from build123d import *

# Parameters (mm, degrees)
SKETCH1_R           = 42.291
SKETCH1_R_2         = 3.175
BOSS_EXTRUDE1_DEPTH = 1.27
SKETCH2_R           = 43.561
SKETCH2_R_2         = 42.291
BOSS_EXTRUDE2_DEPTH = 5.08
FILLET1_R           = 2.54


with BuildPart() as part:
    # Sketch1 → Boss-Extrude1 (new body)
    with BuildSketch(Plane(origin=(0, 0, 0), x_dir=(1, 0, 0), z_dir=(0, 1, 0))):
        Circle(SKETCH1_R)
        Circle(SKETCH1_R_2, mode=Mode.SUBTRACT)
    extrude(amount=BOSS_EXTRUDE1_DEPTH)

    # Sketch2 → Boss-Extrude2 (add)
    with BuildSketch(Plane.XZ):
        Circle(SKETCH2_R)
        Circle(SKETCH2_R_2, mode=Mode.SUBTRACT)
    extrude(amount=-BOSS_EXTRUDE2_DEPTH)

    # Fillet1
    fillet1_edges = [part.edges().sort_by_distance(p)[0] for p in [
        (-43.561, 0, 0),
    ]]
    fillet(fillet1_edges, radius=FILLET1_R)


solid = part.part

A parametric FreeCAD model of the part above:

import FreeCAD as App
import Part
import Sketcher

V = App.Vector
Q = App.Units.Quantity


def edges_at(feature, points):
    """Names of the edges that pass closest to the given points."""
    edges = feature.Shape.Edges
    near = lambda p: min(range(len(edges)), key=lambda i: edges[i].distToShape(Part.Vertex(*p))[0])
    return sorted({f"Edge{near(p) + 1}" for p in points})

doc = App.newDocument("Part")
params = doc.addObject("Spreadsheet::Sheet", "Params")
for row, (alias, value) in enumerate([
    ("sketch1_diameter", "3.33 in"),
    ("sketch1_diameter2", "0.25 in"),
    ("pad1_length", "0.05 in"),
    ("sketch2_diameter", "3.43 in"),
    ("sketch2_diameter2", "3.33 in"),
    ("pad2_length", "0.2 in"),
    ("fillet_radius", "0.1 in"),
], start=1):
    params.set(f"A{row}", alias)
    params.set(f"B{row}", "=" + value)
    params.setAlias(f"B{row}", alias)

body = doc.addObject("PartDesign::Body", "Body")

sketch1 = doc.addObject("Sketcher::SketchObject", "Sketch")
body.addObject(sketch1)
sketch1.AttachmentSupport = (doc.XZ_Plane, [""])
sketch1.MapMode = "FlatFace"
sketch1.addGeometry([
    Part.Circle(V(0, 0, 0), V(0, 0, 1), 42.3),
    Part.Circle(V(0, 0, 0), V(0, 0, 1), 3.2),
], False)
sketch1.addConstraint([
    Sketcher.Constraint("Coincident", 0, 3, -1, 1),
    Sketcher.Constraint("Coincident", 1, 3, -1, 1),
    Sketcher.Constraint("Diameter", 0, Q("3.33 in")),
    Sketcher.Constraint("Diameter", 1, Q("0.25 in")),
])
sketch1.setExpression("Constraints[2]", "Params.sketch1_diameter")
sketch1.setExpression("Constraints[3]", "Params.sketch1_diameter2")
pad1 = doc.addObject("PartDesign::Pad", "Pad")
body.addObject(pad1)
pad1.Profile = sketch1
pad1.setExpression("Length", "Params.pad1_length")
pad1.Reversed = True

sketch2 = doc.addObject("Sketcher::SketchObject", "Sketch001")
body.addObject(sketch2)
sketch2.AttachmentSupport = (doc.XZ_Plane, [""])
sketch2.MapMode = "FlatFace"
sketch2.addGeometry([
    Part.Circle(V(0, 0, 0), V(0, 0, 1), 44),
    Part.Circle(V(0, 0, 0), V(0, 0, 1), 42),
], False)
sketch2.addConstraint([
    Sketcher.Constraint("Coincident", 0, 3, -1, 1),
    Sketcher.Constraint("Coincident", 1, 3, -1, 1),
    Sketcher.Constraint("Diameter", 0, Q("3.43 in")),
    Sketcher.Constraint("Diameter", 1, Q("3.33 in")),
])
sketch2.setExpression("Constraints[2]", "Params.sketch2_diameter")
sketch2.setExpression("Constraints[3]", "Params.sketch2_diameter2")
pad2 = doc.addObject("PartDesign::Pad", "Pad001")
body.addObject(pad2)
pad2.Profile = sketch2
pad2.setExpression("Length", "Params.pad2_length")
pad2.Reversed = True
doc.recompute()

fillet = doc.addObject("PartDesign::Fillet", "Fillet")
body.addObject(fillet)
fillet.Base = (pad2, edges_at(pad2, [(-43.561, 0, 0)]))
fillet.setExpression("Radius", "Params.fillet_radius")

doc.recompute()
